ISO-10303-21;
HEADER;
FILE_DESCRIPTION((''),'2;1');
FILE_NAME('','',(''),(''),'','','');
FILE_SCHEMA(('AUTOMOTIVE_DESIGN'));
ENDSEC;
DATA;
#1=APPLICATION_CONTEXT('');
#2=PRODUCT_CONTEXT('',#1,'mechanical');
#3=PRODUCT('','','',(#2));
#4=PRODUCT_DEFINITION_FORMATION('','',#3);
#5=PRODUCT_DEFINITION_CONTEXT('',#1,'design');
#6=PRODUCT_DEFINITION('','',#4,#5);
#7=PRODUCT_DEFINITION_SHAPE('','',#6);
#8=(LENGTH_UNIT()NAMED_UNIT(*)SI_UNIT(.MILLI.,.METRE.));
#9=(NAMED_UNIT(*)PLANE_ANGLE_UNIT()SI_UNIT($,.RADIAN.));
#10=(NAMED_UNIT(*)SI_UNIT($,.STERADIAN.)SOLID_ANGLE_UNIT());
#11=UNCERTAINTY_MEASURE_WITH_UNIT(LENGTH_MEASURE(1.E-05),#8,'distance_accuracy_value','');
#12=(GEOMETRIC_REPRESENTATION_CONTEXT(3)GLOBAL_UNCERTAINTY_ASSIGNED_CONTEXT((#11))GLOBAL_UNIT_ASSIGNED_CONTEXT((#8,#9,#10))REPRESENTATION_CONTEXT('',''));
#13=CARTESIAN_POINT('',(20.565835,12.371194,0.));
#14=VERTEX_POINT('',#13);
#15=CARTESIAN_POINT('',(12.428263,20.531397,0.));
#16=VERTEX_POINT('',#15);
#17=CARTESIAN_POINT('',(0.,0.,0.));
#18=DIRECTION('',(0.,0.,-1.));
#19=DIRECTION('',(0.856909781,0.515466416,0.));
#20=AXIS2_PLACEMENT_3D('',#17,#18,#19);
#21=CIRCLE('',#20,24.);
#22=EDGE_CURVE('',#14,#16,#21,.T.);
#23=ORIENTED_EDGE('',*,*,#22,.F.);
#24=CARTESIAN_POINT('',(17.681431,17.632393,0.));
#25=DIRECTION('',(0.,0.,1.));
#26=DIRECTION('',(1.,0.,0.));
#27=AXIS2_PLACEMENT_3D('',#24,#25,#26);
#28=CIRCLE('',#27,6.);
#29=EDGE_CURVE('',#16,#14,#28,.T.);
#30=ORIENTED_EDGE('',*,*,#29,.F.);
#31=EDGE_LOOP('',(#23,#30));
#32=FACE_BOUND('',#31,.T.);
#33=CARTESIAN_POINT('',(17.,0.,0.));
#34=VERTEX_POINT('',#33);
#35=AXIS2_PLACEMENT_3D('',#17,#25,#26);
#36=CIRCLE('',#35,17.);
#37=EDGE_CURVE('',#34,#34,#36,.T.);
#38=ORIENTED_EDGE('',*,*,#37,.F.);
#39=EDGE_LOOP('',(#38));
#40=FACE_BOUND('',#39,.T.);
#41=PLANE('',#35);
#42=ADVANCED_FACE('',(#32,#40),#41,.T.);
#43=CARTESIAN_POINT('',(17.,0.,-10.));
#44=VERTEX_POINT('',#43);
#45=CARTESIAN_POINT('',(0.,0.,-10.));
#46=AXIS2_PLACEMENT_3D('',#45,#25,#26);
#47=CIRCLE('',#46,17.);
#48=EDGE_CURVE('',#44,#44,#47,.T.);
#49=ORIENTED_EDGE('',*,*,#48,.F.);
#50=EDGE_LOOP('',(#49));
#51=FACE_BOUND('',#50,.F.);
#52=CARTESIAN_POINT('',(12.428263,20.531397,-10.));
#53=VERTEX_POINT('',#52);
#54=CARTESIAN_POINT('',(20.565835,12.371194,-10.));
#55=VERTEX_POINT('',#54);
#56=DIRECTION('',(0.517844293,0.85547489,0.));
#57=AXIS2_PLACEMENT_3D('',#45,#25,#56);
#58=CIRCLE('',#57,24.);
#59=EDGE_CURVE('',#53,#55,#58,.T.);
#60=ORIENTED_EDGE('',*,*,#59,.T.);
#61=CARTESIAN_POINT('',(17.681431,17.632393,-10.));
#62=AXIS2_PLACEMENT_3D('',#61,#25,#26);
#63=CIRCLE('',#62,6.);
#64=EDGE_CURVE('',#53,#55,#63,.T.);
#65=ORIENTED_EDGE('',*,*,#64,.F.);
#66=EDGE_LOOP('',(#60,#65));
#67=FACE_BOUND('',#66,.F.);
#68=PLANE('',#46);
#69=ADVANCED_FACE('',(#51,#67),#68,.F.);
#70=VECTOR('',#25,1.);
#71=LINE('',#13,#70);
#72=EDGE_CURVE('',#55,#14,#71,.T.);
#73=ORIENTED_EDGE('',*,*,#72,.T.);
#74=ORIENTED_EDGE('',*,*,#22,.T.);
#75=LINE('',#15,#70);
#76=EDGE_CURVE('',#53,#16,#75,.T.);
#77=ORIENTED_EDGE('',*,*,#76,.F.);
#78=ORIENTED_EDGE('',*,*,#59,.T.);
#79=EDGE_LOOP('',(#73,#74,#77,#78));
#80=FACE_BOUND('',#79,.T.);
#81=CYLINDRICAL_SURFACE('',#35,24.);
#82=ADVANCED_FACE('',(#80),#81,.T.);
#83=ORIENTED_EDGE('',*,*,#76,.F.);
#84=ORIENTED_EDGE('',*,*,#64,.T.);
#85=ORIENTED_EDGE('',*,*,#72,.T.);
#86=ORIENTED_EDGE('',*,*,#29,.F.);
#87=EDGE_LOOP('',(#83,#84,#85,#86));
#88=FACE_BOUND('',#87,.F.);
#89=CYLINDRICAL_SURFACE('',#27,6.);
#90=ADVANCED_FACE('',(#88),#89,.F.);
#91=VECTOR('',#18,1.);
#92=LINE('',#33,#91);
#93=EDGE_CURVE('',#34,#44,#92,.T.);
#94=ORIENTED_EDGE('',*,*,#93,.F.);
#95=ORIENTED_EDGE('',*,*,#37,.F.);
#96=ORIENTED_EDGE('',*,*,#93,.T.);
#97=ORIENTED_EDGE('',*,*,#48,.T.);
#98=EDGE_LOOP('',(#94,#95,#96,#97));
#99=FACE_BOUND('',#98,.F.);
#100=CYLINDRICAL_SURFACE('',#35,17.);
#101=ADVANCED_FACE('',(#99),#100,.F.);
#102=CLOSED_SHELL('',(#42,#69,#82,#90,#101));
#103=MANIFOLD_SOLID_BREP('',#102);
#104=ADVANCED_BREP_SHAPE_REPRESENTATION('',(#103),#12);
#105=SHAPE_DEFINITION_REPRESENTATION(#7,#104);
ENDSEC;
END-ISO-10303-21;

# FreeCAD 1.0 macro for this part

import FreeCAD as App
import Part
import Sketcher
from FreeCAD import Vector

doc = App.newDocument("Part")
body = doc.addObject("PartDesign::Body", "Body")

# Sketch on XY plane
sketch1 = body.newObject("Sketcher::SketchObject", "Sketch")
sketch1.AttachmentSupport = (doc.getObject("XY_Plane"), [""])
sketch1.MapMode = "FlatFace"
sketch1.addGeometry([
    Part.Circle(Vector(0, 0, 0), Vector(0, 0, 1), 24),
    Part.Circle(Vector(0, 0, 0), Vector(0, 0, 1), 17),
], False)
sketch1.addConstraint([
    Sketcher.Constraint("Coincident", 0, 3, -1, 1),
    Sketcher.Constraint("Coincident", 1, 3, -1, 1),
    Sketcher.Constraint("Diameter", 0, 48.0),
    Sketcher.Constraint("Diameter", 1, 34.0),
])
pad1 = body.newObject("PartDesign::Pad", "Pad")
pad1.Profile = sketch1
pad1.Length = 10
pad1.Reversed = True

# Sketch on XY plane
sketch2 = body.newObject("Sketcher::SketchObject", "Sketch001")
sketch2.AttachmentSupport = (doc.getObject("XY_Plane"), [""])
sketch2.MapMode = "FlatFace"
sketch2.addGeometry(Part.Circle(Vector(18, 18, 0), Vector(0, 0, 1), 6), False)
sketch2.addConstraint([
    Sketcher.Constraint("Diameter", 0, 12.0),
    Sketcher.Constraint("DistanceX", -1, 1, 0, 3, 17.681431),
    Sketcher.Constraint("DistanceY", -1, 1, 0, 3, 17.632393),
])
pocket1 = body.newObject("PartDesign::Pocket", "Pocket")
pocket1.Profile = sketch2
pocket1.Type = "ThroughAll"
pocket1.Midplane = True

doc.recompute()
